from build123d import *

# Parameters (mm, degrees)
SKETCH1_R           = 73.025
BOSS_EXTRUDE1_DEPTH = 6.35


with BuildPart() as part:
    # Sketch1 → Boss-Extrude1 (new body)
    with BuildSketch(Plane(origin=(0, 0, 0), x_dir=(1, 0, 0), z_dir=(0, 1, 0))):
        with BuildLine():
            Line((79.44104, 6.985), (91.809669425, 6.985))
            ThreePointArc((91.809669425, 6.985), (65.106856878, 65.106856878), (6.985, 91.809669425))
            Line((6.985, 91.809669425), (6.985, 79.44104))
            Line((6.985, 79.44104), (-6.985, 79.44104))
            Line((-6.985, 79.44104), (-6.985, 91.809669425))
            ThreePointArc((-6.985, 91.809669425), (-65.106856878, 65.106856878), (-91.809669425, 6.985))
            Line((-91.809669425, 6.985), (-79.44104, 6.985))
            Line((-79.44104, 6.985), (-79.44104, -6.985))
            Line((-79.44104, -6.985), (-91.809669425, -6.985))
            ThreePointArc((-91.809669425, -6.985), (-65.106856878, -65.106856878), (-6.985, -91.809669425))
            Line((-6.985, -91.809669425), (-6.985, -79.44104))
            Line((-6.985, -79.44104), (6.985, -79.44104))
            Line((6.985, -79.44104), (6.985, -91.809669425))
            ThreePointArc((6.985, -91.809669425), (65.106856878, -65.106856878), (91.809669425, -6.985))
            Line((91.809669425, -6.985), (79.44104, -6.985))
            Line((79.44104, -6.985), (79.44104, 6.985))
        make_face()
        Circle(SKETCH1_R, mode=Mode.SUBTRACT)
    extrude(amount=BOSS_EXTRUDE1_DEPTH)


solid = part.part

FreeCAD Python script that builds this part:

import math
import FreeCAD as App
import Part
import Sketcher
from FreeCAD import Vector
Q = App.Units.Quantity

doc = App.newDocument("Part")
body = doc.addObject("PartDesign::Body", "Body")

# Sketch on XZ plane
sketch1 = body.newObject("Sketcher::SketchObject", "Sketch")
sketch1.AttachmentSupport = (doc.getObject("XZ_Plane"), [""])
sketch1.MapMode = "FlatFace"
sketch1.addGeometry(Part.LineSegment(Vector(79, -7, 0), Vector(92, -7, 0)), False)
sketch1.addGeometry(Part.ArcOfCircle(Part.Circle(Vector(0, 0, 0), Vector(0, 0, 1), 92), math.radians(-86), math.radians(-4)), False)
sketch1.addGeometry(Part.LineSegment(Vector(7, -92, 0), Vector(7, -79, 0)), False)
sketch1.addGeometry(Part.LineSegment(Vector(7, -79, 0), Vector(-7, -79, 0)), False)
sketch1.addGeometry(Part.LineSegment(Vector(-7, -79, 0), Vector(-7, -92, 0)), False)
sketch1.addGeometry(Part.ArcOfCircle(Part.Circle(Vector(0, 0, 0), Vector(0, 0, 1), 92), math.radians(-176), math.radians(-94)), False)
sketch1.addGeometry(Part.LineSegment(Vector(-92, -7, 0), Vector(-79, -7, 0)), False)
sketch1.addGeometry(Part.LineSegment(Vector(-79, -7, 0), Vector(-79, 7, 0)), False)
sketch1.addGeometry(Part.LineSegment(Vector(-79, 7, 0), Vector(-92, 7, 0)), False)
sketch1.addGeometry(Part.ArcOfCircle(Part.Circle(Vector(0, 0, 0), Vector(0, 0, 1), 92), math.radians(94), math.radians(176)), False)
sketch1.addGeometry(Part.LineSegment(Vector(-7, 92, 0), Vector(-7, 79, 0)), False)
sketch1.addGeometry(Part.LineSegment(Vector(-7, 79, 0), Vector(7, 79, 0)), False)
sketch1.addGeometry(Part.LineSegment(Vector(7, 79, 0), Vector(7, 92, 0)), False)
sketch1.addGeometry(Part.ArcOfCircle(Part.Circle(Vector(0, 0, 0), Vector(0, 0, 1), 92), math.radians(4), math.radians(86)), False)
sketch1.addGeometry(Part.LineSegment(Vector(92, 7, 0), Vector(79, 7, 0)), False)
sketch1.addGeometry(Part.LineSegment(Vector(79, 7, 0), Vector(79, -7, 0)), False)
sketch1.addGeometry(Part.Circle(Vector(0, 0, 0), Vector(0, 0, 1), 73), False)
sketch1.addConstraint(Sketcher.Constraint("Coincident", 0, 2, 1, 2))
sketch1.addConstraint(Sketcher.Constraint("Coincident", 1, 1, 2, 1))
sketch1.addConstraint(Sketcher.Constraint("Coincident", 2, 2, 3, 1))
sketch1.addConstraint(Sketcher.Constraint("Coincident", 3, 2, 4, 1))
sketch1.addConstraint(Sketcher.Constraint("Coincident", 4, 2, 5, 2))
sketch1.addConstraint(Sketcher.Constraint("Coincident", 5, 1, 6, 1))
sketch1.addConstraint(Sketcher.Constraint("Coincident", 6, 2, 7, 1))
sketch1.addConstraint(Sketcher.Constraint("Coincident", 7, 2, 8, 1))
sketch1.addConstraint(Sketcher.Constraint("Coincident", 8, 2, 9, 2))
sketch1.addConstraint(Sketcher.Constraint("Coincident", 9, 1, 10, 1))
sketch1.addConstraint(Sketcher.Constraint("Coincident", 10, 2, 11, 1))
sketch1.addConstraint(Sketcher.Constraint("Coincident", 11, 2, 12, 1))
sketch1.addConstraint(Sketcher.Constraint("Coincident", 12, 2, 13, 2))
sketch1.addConstraint(Sketcher.Constraint("Coincident", 13, 1, 14, 1))
sketch1.addConstraint(Sketcher.Constraint("Coincident", 14, 2, 15, 1))
sketch1.addConstraint(Sketcher.Constraint("Coincident", 15, 2, 0, 1))
sketch1.addConstraint(Sketcher.Constraint("Horizontal", 0))
sketch1.addConstraint(Sketcher.Constraint("Vertical", 2))
sketch1.addConstraint(Sketcher.Constraint("Horizontal", 3))
sketch1.addConstraint(Sketcher.Constraint("Vertical", 4))
sketch1.addConstraint(Sketcher.Constraint("Horizontal", 6))
sketch1.addConstraint(Sketcher.Constraint("Vertical", 7))
sketch1.addConstraint(Sketcher.Constraint("Horizontal", 8))
sketch1.addConstraint(Sketcher.Constraint("Vertical", 10))
sketch1.addConstraint(Sketcher.Constraint("Horizontal", 11))
sketch1.addConstraint(Sketcher.Constraint("Vertical", 12))
sketch1.addConstraint(Sketcher.Constraint("Horizontal", 14))
sketch1.addConstraint(Sketcher.Constraint("Vertical", 15))
sketch1.addConstraint(Sketcher.Constraint("Coincident", 1, 3, -1, 1))
sketch1.addConstraint(Sketcher.Constraint("Coincident", 5, 3, -1, 1))
sketch1.addConstraint(Sketcher.Constraint("Coincident", 9, 3, -1, 1))
sketch1.addConstraint(Sketcher.Constraint("Coincident", 13, 3, -1, 1))
sketch1.addConstraint(Sketcher.Constraint("Coincident", 16, 3, -1, 1))
sketch1.addConstraint(Sketcher.Constraint("Equal", 1, 5))
sketch1.addConstraint(Sketcher.Constraint("Equal", 5, 9))
sketch1.addConstraint(Sketcher.Constraint("Equal", 9, 13))
sketch1.addConstraint(Sketcher.Constraint("Symmetric", 2, 2, 10, 2, -1, 1))
sketch1.addConstraint(Sketcher.Constraint("Symmetric", 6, 2, 14, 2, -1, 1))
sketch1.addConstraint(Sketcher.Constraint("Horizontal", 1, 1, 4, 2))
sketch1.addConstraint(Sketcher.Constraint("Horizontal", 0, 2, 5, 1))
sketch1.addConstraint(Sketcher.Constraint("Horizontal", 9, 1, 12, 2))
sketch1.addConstraint(Sketcher.Constraint("Horizontal", 8, 2, 13, 1))
sketch1.addConstraint(Sketcher.Constraint("Equal", 14, 2))
sketch1.addConstraint(Sketcher.Constraint("Equal", 11, 7))
sketch1.addConstraint(Sketcher.Constraint("Diameter", 16, Q("5.75 in")))
sketch1.addConstraint(Sketcher.Constraint("Radius", 1, Q("3.625 in")))
sketch1.addConstraint(Sketcher.Constraint("DistanceX", 3, 2, 3, 1, Q("0.55 in")))
sketch1.addConstraint(Sketcher.Constraint("DistanceY", 2, 2, -1, 1, Q("3.1276 in")))
pad1 = body.newObject("PartDesign::Pad", "Pad")
pad1.Profile = sketch1
pad1.Length = Q("0.25 in")
pad1.Reversed = True

doc.recompute()
